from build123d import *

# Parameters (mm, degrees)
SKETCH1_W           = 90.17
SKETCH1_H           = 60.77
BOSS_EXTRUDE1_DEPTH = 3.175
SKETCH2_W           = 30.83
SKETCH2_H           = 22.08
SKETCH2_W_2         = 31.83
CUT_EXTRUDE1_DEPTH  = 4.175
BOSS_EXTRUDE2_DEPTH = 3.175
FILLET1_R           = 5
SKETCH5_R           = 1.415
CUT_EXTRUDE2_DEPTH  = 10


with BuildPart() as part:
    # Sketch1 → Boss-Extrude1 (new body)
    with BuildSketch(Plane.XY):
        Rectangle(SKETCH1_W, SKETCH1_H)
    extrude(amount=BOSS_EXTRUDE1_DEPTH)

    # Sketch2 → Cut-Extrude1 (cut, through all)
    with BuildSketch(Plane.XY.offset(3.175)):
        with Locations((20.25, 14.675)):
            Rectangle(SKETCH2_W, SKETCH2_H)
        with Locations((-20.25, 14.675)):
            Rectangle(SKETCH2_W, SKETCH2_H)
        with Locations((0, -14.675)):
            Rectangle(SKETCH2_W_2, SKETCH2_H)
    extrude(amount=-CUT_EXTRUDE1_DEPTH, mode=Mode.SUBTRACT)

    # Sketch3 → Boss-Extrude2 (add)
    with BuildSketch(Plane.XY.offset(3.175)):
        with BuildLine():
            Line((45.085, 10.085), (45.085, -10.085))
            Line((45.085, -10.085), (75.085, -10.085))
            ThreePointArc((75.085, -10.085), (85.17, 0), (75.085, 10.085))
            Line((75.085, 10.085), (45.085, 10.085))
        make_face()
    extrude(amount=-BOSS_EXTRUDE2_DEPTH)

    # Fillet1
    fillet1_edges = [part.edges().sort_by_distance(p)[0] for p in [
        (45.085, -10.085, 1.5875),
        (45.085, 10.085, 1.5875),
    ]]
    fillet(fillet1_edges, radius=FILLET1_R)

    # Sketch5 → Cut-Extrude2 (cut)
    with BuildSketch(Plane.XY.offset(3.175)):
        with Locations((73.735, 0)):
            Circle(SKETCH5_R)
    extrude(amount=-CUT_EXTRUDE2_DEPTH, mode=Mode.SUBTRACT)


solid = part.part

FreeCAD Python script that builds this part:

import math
import FreeCAD as App
import Part
import Sketcher
Q = App.Units.Quantity


def edges_at(feature, points):
    """Names of the edges that pass closest to the given points."""
    edges = feature.Shape.Edges
    near = lambda p: min(range(len(edges)), key=lambda i: edges[i].distToShape(Part.Vertex(*p))[0])
    return sorted({f"Edge{near(p) + 1}" for p in points})


def add_polygon(sketch, points):
    """Adds a closed chain of lines whose ends are joined by coincident constraints."""
    first, n = sketch.GeometryCount, len(points)
    for a, b in zip(points, points[1:] + points[:1]):
        sketch.addGeometry(Part.LineSegment(App.Vector(*a, 0), App.Vector(*b, 0)), False)
    for i in range(n):
        sketch.addConstraint(Sketcher.Constraint("Coincident", first + i, 2, first + (i + 1) % n, 1))

doc = App.newDocument("Part")
body = doc.addObject("PartDesign::Body", "Body")

# Sketch on XY plane
sketch1 = doc.addObject("Sketcher::SketchObject", "Sketch")
body.addObject(sketch1)
sketch1.AttachmentSupport = (doc.XY_Plane, [""])
sketch1.MapMode = "FlatFace"
add_polygon(sketch1, [(-45, 30), (-45, -30), (45, -30), (45, 30)])  # lines 0-3
sketch1.addConstraint([
    Sketcher.Constraint("Vertical", 0),
    Sketcher.Constraint("Horizontal", 1),
    Sketcher.Constraint("Vertical", 2),
    Sketcher.Constraint("Horizontal", 3),
    Sketcher.Constraint("Symmetric", 0, 2, 2, 2, -1, 1),
    Sketcher.Constraint("DistanceX", 1, 1, 1, 2, Q("90.17 mm")),
    Sketcher.Constraint("DistanceY", 0, 2, 0, 1, Q("60.77 mm")),
])
pad1 = doc.addObject("PartDesign::Pad", "Pad")
body.addObject(pad1)
pad1.Profile = sketch1
pad1.Length = 3.175

# Sketch on XY plane
sketch2 = doc.addObject("Sketcher::SketchObject", "Sketch001")
body.addObject(sketch2)
sketch2.AttachmentSupport = (doc.XY_Plane, [""])
sketch2.MapMode = "FlatFace"
sketch2.AttachmentOffset = App.Placement(App.Vector(0, 0, 3.175), App.Rotation())
add_polygon(sketch2, [(5, 26), (5, 4), (36, 4), (36, 26)])  # lines 0-3
add_polygon(sketch2, [(-36, 26), (-36, 4), (-5, 4), (-5, 26)])  # lines 4-7
add_polygon(sketch2, [(-16, -4), (-16, -26), (16, -26), (16, -4)])  # lines 8-11
sketch2.addConstraint([
    Sketcher.Constraint("Vertical", 0),
    Sketcher.Constraint("Horizontal", 1),
    Sketcher.Constraint("Vertical", 2),
    Sketcher.Constraint("Horizontal", 3),
    Sketcher.Constraint("Vertical", 4),
    Sketcher.Constraint("Horizontal", 5),
    Sketcher.Constraint("Vertical", 6),
    Sketcher.Constraint("Horizontal", 7),
    Sketcher.Constraint("Vertical", 8),
    Sketcher.Constraint("Horizontal", 9),
    Sketcher.Constraint("Vertical", 10),
    Sketcher.Constraint("Horizontal", 11),
    Sketcher.Constraint("Symmetric", 1, 2, 4, 2, -2),
    Sketcher.Constraint("Symmetric", 3, 2, 6, 2, -2),
    Sketcher.Constraint("Equal", 6, 8),
    Sketcher.Constraint("DistanceX", 1, 1, 1, 2, Q("30.83 mm")),
    Sketcher.Constraint("DistanceX", 9, 1, 9, 2, Q("31.83 mm")),
    Sketcher.Constraint("DistanceY", 0, 2, 0, 1, Q("22.08 mm")),
    Sketcher.Constraint("DistanceX", 4, 2, 0, 2, Q("40.5 mm")),
    Sketcher.Constraint("DistanceX", 8, 2, 5, 2, Q("11.08 mm")),
    Sketcher.Constraint("DistanceY", 8, 2, 5, 2, Q("29.35 mm")),
    Sketcher.Constraint("DistanceY", -1, 1, 0, 2, Q("3.635 mm")),
])
pocket1 = doc.addObject("PartDesign::Pocket", "Pocket")
body.addObject(pocket1)
pocket1.Profile = sketch2
pocket1.Type = "ThroughAll"

# Sketch on XY plane
sketch3 = doc.addObject("Sketcher::SketchObject", "Sketch002")
body.addObject(sketch3)
sketch3.AttachmentSupport = (doc.XY_Plane, [""])
sketch3.MapMode = "FlatFace"
sketch3.AttachmentOffset = App.Placement(App.Vector(0, 0, 3.175), App.Rotation())
sketch3.addGeometry([
    Part.LineSegment(App.Vector(45, 10, 0), App.Vector(45, -10, 0)),
    Part.LineSegment(App.Vector(45, -10, 0), App.Vector(75, -10, 0)),
    Part.ArcOfCircle(Part.Circle(App.Vector(75, 0, 0), App.Vector(0, 0, 1), 10), math.radians(-90), math.radians(90)),
    Part.LineSegment(App.Vector(75, 10, 0), App.Vector(45, 10, 0)),
], False)
sketch3.addConstraint([
    Sketcher.Constraint("Coincident", 0, 2, 1, 1),
    Sketcher.Constraint("Tangent", 1, 2, 2, 1),
    Sketcher.Constraint("Tangent", 2, 2, 3, 1),
    Sketcher.Constraint("Coincident", 3, 2, 0, 1),
    Sketcher.Constraint("Vertical", 0),
    Sketcher.Constraint("Horizontal", 1),
    Sketcher.Constraint("Horizontal", 3),
    Sketcher.Constraint("PointOnObject", 2, 3, -1),
    Sketcher.Constraint("DistanceX", 1, 1, 1, 2, Q("30 mm")),
    Sketcher.Constraint("Radius", 2, Q("10.085 mm")),
    Sketcher.Constraint("DistanceX", -1, 1, 2, 3, Q("75.085 mm")),
])
pad2 = doc.addObject("PartDesign::Pad", "Pad001")
body.addObject(pad2)
pad2.Profile = sketch3
pad2.Length = 3.175
pad2.Reversed = True
doc.recompute()

fillet = doc.addObject("PartDesign::Fillet", "Fillet")
body.addObject(fillet)
fillet.Base = (pad2, edges_at(pad2, [(45.085, -10.085, 1.587), (45.085, 10.085, 1.587)]))
fillet.Radius = 5

# Sketch on XY plane
sketch4 = doc.addObject("Sketcher::SketchObject", "Sketch003")
body.addObject(sketch4)
sketch4.AttachmentSupport = (doc.XY_Plane, [""])
sketch4.MapMode = "FlatFace"
sketch4.AttachmentOffset = App.Placement(App.Vector(0, 0, 3.175), App.Rotation())
sketch4.addGeometry(Part.Circle(App.Vector(73.7, 0, 0), App.Vector(0, 0, 1), 1.4), False)
sketch4.addConstraint([
    Sketcher.Constraint("PointOnObject", 0, 3, -1),
    Sketcher.Constraint("Diameter", 0, Q("2.83 mm")),
    Sketcher.Constraint("DistanceX", -1, 1, 0, 3, Q("73.735 mm")),
])
pocket2 = doc.addObject("PartDesign::Pocket", "Pocket001")
body.addObject(pocket2)
pocket2.Profile = sketch4
pocket2.Length = 10

doc.recompute()
